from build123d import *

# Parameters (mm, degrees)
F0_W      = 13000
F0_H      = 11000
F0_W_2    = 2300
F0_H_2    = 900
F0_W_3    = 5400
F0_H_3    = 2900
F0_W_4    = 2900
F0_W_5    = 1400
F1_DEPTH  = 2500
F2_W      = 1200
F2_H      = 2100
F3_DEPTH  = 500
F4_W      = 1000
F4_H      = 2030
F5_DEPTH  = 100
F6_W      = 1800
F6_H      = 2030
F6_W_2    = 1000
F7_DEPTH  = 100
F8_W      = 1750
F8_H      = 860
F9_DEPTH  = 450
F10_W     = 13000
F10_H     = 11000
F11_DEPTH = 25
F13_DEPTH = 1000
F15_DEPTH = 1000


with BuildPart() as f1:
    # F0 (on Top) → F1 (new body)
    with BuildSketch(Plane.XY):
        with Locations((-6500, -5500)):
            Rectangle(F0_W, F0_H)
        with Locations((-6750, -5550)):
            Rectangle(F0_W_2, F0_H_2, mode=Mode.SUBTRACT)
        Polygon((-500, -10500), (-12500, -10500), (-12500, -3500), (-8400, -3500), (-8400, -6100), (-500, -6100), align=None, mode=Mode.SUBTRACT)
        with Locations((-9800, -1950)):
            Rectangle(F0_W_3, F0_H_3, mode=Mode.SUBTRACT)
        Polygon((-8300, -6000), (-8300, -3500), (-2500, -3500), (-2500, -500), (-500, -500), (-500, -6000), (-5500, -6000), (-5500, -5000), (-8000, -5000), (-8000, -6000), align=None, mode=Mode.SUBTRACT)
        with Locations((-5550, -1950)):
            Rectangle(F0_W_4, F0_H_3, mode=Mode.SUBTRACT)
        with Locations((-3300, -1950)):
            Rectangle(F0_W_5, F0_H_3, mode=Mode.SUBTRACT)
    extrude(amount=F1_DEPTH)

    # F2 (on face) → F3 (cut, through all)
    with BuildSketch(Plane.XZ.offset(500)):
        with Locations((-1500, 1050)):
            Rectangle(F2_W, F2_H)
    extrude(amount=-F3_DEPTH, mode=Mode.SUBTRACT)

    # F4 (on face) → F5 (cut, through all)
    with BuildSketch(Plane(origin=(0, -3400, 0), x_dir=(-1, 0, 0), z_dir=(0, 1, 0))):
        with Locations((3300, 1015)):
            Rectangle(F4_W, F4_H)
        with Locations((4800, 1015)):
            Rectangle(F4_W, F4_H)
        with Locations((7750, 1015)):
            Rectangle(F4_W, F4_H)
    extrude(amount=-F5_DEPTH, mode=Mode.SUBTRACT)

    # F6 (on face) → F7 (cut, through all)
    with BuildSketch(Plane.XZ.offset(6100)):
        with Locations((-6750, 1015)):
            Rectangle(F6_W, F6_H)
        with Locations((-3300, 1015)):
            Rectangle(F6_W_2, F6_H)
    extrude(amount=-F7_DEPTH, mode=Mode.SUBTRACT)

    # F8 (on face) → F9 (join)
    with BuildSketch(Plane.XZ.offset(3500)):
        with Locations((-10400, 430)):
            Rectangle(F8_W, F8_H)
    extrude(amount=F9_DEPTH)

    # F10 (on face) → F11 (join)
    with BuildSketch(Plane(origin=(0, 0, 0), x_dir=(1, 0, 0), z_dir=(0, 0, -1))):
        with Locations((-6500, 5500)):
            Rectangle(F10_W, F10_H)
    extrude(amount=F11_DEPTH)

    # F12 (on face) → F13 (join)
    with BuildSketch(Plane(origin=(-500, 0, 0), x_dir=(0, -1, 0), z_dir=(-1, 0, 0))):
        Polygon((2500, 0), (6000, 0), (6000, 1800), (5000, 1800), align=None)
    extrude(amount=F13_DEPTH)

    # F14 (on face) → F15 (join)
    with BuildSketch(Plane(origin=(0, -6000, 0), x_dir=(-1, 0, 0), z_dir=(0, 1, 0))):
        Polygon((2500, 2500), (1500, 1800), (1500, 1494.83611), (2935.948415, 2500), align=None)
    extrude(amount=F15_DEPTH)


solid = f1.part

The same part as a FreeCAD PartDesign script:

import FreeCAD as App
import Part
import Sketcher
from FreeCAD import Vector

doc = App.newDocument("Part")
body = doc.addObject("PartDesign::Body", "Body")

# Sketch on XY plane
sketch1 = doc.addObject("Sketcher::SketchObject", "Sketch")
body.addObject(sketch1)
sketch1.AttachmentSupport = (doc.XY_Plane, [""])
sketch1.MapMode = "FlatFace"
sketch1.addGeometry(Part.LineSegment(Vector(-13000, 0, 0), Vector(-13000, -11000, 0)), False)
sketch1.addGeometry(Part.LineSegment(Vector(-13000, -11000, 0), Vector(0, -11000, 0)), False)
sketch1.addGeometry(Part.LineSegment(Vector(0, -11000, 0), Vector(0, 0, 0)), False)
sketch1.addGeometry(Part.LineSegment(Vector(0, 0, 0), Vector(-13000, 0, 0)), False)
sketch1.addGeometry(Part.LineSegment(Vector(-5600, -6000, 0), Vector(-7900, -6000, 0)), False)
sketch1.addGeometry(Part.LineSegment(Vector(-7900, -6000, 0), Vector(-7900, -5100, 0)), False)
sketch1.addGeometry(Part.LineSegment(Vector(-7900, -5100, 0), Vector(-5600, -5100, 0)), False)
sketch1.addGeometry(Part.LineSegment(Vector(-5600, -5100, 0), Vector(-5600, -6000, 0)), False)
sketch1.addGeometry(Part.LineSegment(Vector(-500, -6100, 0), Vector(-500, -10500, 0)), False)
sketch1.addGeometry(Part.LineSegment(Vector(-500, -10500, 0), Vector(-12500, -10500, 0)), False)
sketch1.addGeometry(Part.LineSegment(Vector(-12500, -10500, 0), Vector(-12500, -3500, 0)), False)
sketch1.addGeometry(Part.LineSegment(Vector(-12500, -3500, 0), Vector(-8400, -3500, 0)), False)
sketch1.addGeometry(Part.LineSegment(Vector(-8400, -3500, 0), Vector(-8400, -6100, 0)), False)
sketch1.addGeometry(Part.LineSegment(Vector(-8400, -6100, 0), Vector(-500, -6100, 0)), False)
sketch1.addGeometry(Part.LineSegment(Vector(-7100, -3400, 0), Vector(-12500, -3400, 0)), False)
sketch1.addGeometry(Part.LineSegment(Vector(-12500, -3400, 0), Vector(-12500, -500, 0)), False)
sketch1.addGeometry(Part.LineSegment(Vector(-12500, -500, 0), Vector(-7100, -500, 0)), False)
sketch1.addGeometry(Part.LineSegment(Vector(-7100, -500, 0), Vector(-7100, -3400, 0)), False)
sketch1.addGeometry(Part.LineSegment(Vector(-8000, -6000, 0), Vector(-8300, -6000, 0)), False)
sketch1.addGeometry(Part.LineSegment(Vector(-8300, -6000, 0), Vector(-8300, -3500, 0)), False)
sketch1.addGeometry(Part.LineSegment(Vector(-8300, -3500, 0), Vector(-2500, -3500, 0)), False)
sketch1.addGeometry(Part.LineSegment(Vector(-2500, -3500, 0), Vector(-2500, -500, 0)), False)
sketch1.addGeometry(Part.LineSegment(Vector(-2500, -500, 0), Vector(-500, -500, 0)), False)
sketch1.addGeometry(Part.LineSegment(Vector(-500, -500, 0), Vector(-500, -6000, 0)), False)
sketch1.addGeometry(Part.LineSegment(Vector(-500, -6000, 0), Vector(-5500, -6000, 0)), False)
sketch1.addGeometry(Part.LineSegment(Vector(-5500, -6000, 0), Vector(-5500, -5000, 0)), False)
sketch1.addGeometry(Part.LineSegment(Vector(-5500, -5000, 0), Vector(-8000, -5000, 0)), False)
sketch1.addGeometry(Part.LineSegment(Vector(-8000, -5000, 0), Vector(-8000, -6000, 0)), False)
sketch1.addGeometry(Part.LineSegment(Vector(-4100, -3400, 0), Vector(-7000, -3400, 0)), False)
sketch1.addGeometry(Part.LineSegment(Vector(-7000, -3400, 0), Vector(-7000, -500, 0)), False)
sketch1.addGeometry(Part.LineSegment(Vector(-7000, -500, 0), Vector(-4100, -500, 0)), False)
sketch1.addGeometry(Part.LineSegment(Vector(-4100, -500, 0), Vector(-4100, -3400, 0)), False)
sketch1.addGeometry(Part.LineSegment(Vector(-2600, -3400, 0), Vector(-4000, -3400, 0)), False)
sketch1.addGeometry(Part.LineSegment(Vector(-4000, -3400, 0), Vector(-4000, -500, 0)), False)
sketch1.addGeometry(Part.LineSegment(Vector(-4000, -500, 0), Vector(-2600, -500, 0)), False)
sketch1.addGeometry(Part.LineSegment(Vector(-2600, -500, 0), Vector(-2600, -3400, 0)), False)
sketch1.addConstraint(Sketcher.Constraint("Coincident", 0, 2, 1, 1))
sketch1.addConstraint(Sketcher.Constraint("Coincident", 1, 2, 2, 1))
sketch1.addConstraint(Sketcher.Constraint("Coincident", 2, 2, 3, 1))
sketch1.addConstraint(Sketcher.Constraint("Coincident", 3, 2, 0, 1))
sketch1.addConstraint(Sketcher.Constraint("Coincident", 4, 2, 5, 1))
sketch1.addConstraint(Sketcher.Constraint("Coincident", 5, 2, 6, 1))
sketch1.addConstraint(Sketcher.Constraint("Coincident", 6, 2, 7, 1))
sketch1.addConstraint(Sketcher.Constraint("Coincident", 7, 2, 4, 1))
sketch1.addConstraint(Sketcher.Constraint("Coincident", 8, 2, 9, 1))
sketch1.addConstraint(Sketcher.Constraint("Coincident", 9, 2, 10, 1))
sketch1.addConstraint(Sketcher.Constraint("Coincident", 10, 2, 11, 1))
sketch1.addConstraint(Sketcher.Constraint("Coincident", 11, 2, 12, 1))
sketch1.addConstraint(Sketcher.Constraint("Coincident", 12, 2, 13, 1))
sketch1.addConstraint(Sketcher.Constraint("Coincident", 13, 2, 8, 1))
sketch1.addConstraint(Sketcher.Constraint("Coincident", 14, 2, 15, 1))
sketch1.addConstraint(Sketcher.Constraint("Coincident", 15, 2, 16, 1))
sketch1.addConstraint(Sketcher.Constraint("Coincident", 16, 2, 17, 1))
sketch1.addConstraint(Sketcher.Constraint("Coincident", 17, 2, 14, 1))
sketch1.addConstraint(Sketcher.Constraint("Coincident", 18, 2, 19, 1))
sketch1.addConstraint(Sketcher.Constraint("Coincident", 19, 2, 20, 1))
sketch1.addConstraint(Sketcher.Constraint("Coincident", 20, 2, 21, 1))
sketch1.addConstraint(Sketcher.Constraint("Coincident", 21, 2, 22, 1))
sketch1.addConstraint(Sketcher.Constraint("Coincident", 22, 2, 23, 1))
sketch1.addConstraint(Sketcher.Constraint("Coincident", 23, 2, 24, 1))
sketch1.addConstraint(Sketcher.Constraint("Coincident", 24, 2, 25, 1))
sketch1.addConstraint(Sketcher.Constraint("Coincident", 25, 2, 26, 1))
sketch1.addConstraint(Sketcher.Constraint("Coincident", 26, 2, 27, 1))
sketch1.addConstraint(Sketcher.Constraint("Coincident", 27, 2, 18, 1))
sketch1.addConstraint(Sketcher.Constraint("Coincident", 28, 2, 29, 1))
sketch1.addConstraint(Sketcher.Constraint("Coincident", 29, 2, 30, 1))
sketch1.addConstraint(Sketcher.Constraint("Coincident", 30, 2, 31, 1))
sketch1.addConstraint(Sketcher.Constraint("Coincident", 31, 2, 28, 1))
sketch1.addConstraint(Sketcher.Constraint("Coincident", 32, 2, 33, 1))
sketch1.addConstraint(Sketcher.Constraint("Coincident", 33, 2, 34, 1))
sketch1.addConstraint(Sketcher.Constraint("Coincident", 34, 2, 35, 1))
sketch1.addConstraint(Sketcher.Constraint("Coincident", 35, 2, 32, 1))
sketch1.addConstraint(Sketcher.Constraint("Vertical", 0))
sketch1.addConstraint(Sketcher.Constraint("Horizontal", 1))
sketch1.addConstraint(Sketcher.Constraint("Vertical", 2))
sketch1.addConstraint(Sketcher.Constraint("Horizontal", 3))
sketch1.addConstraint(Sketcher.Constraint("Horizontal", 4))
sketch1.addConstraint(Sketcher.Constraint("Vertical", 5))
sketch1.addConstraint(Sketcher.Constraint("Horizontal", 6))
sketch1.addConstraint(Sketcher.Constraint("Vertical", 7))
sketch1.addConstraint(Sketcher.Constraint("Vertical", 8))
sketch1.addConstraint(Sketcher.Constraint("Horizontal", 9))
sketch1.addConstraint(Sketcher.Constraint("Vertical", 10))
sketch1.addConstraint(Sketcher.Constraint("Horizontal", 11))
sketch1.addConstraint(Sketcher.Constraint("Vertical", 12))
sketch1.addConstraint(Sketcher.Constraint("Horizontal", 13))
sketch1.addConstraint(Sketcher.Constraint("Horizontal", 14))
sketch1.addConstraint(Sketcher.Constraint("Vertical", 15))
sketch1.addConstraint(Sketcher.Constraint("Horizontal", 16))
sketch1.addConstraint(Sketcher.Constraint("Vertical", 17))
sketch1.addConstraint(Sketcher.Constraint("Horizontal", 18))
sketch1.addConstraint(Sketcher.Constraint("Vertical", 19))
sketch1.addConstraint(Sketcher.Constraint("Horizontal", 20))
sketch1.addConstraint(Sketcher.Constraint("Vertical", 21))
sketch1.addConstraint(Sketcher.Constraint("Horizontal", 22))
sketch1.addConstraint(Sketcher.Constraint("Vertical", 23))
sketch1.addConstraint(Sketcher.Constraint("Horizontal", 24))
sketch1.addConstraint(Sketcher.Constraint("Vertical", 25))
sketch1.addConstraint(Sketcher.Constraint("Horizontal", 26))
sketch1.addConstraint(Sketcher.Constraint("Vertical", 27))
sketch1.addConstraint(Sketcher.Constraint("Horizontal", 28))
sketch1.addConstraint(Sketcher.Constraint("Vertical", 29))
sketch1.addConstraint(Sketcher.Constraint("Horizontal", 30))
sketch1.addConstraint(Sketcher.Constraint("Vertical", 31))
sketch1.addConstraint(Sketcher.Constraint("Horizontal", 32))
sketch1.addConstraint(Sketcher.Constraint("Vertical", 33))
sketch1.addConstraint(Sketcher.Constraint("Horizontal", 34))
sketch1.addConstraint(Sketcher.Constraint("Vertical", 35))
sketch1.addConstraint(Sketcher.Constraint("Coincident", 2, 2, -1, 1))
sketch1.addConstraint(Sketcher.Constraint("Horizontal", 7, 2, 18, 2))
sketch1.addConstraint(Sketcher.Constraint("Horizontal", 11, 2, 19, 2))
sketch1.addConstraint(Sketcher.Constraint("Horizontal", 16, 2, 21, 2))
sketch1.addConstraint(Sketcher.Constraint("Horizontal", 18, 2, 23, 2))
sketch1.addConstraint(Sketcher.Constraint("Horizontal", 17, 2, 28, 2))
sketch1.addConstraint(Sketcher.Constraint("Horizontal", 22, 2, 29, 2))
sketch1.addConstraint(Sketcher.Constraint("Horizontal", 31, 2, 32, 2))
sketch1.addConstraint(Sketcher.Constraint("Horizontal", 30, 2, 33, 2))
sketch1.addConstraint(Sketcher.Constraint("Vertical", 10, 2, 14, 2))
sketch1.addConstraint(Sketcher.Constraint("Vertical", 13, 2, 22, 2))
sketch1.addConstraint(Sketcher.Constraint("Equal", 30, 15))
sketch1.addConstraint(Sketcher.Constraint("Equal", 26, 19))
sketch1.addConstraint(Sketcher.Constraint("DistanceX", 1, 1, 1, 2, 13000.0))
sketch1.addConstraint(Sketcher.Constraint("DistanceX", 4, 2, 4, 1, 2300.0))
sketch1.addConstraint(Sketcher.Constraint("DistanceX", 9, 2, 9, 1, 12000.0))
sketch1.addConstraint(Sketcher.Constraint("DistanceX", 11, 1, 11, 2, 4100.0))
sketch1.addConstraint(Sketcher.Constraint("DistanceX", 14, 2, 14, 1, 5400.0))
sketch1.addConstraint(Sketcher.Constraint("DistanceX", 18, 2, 18, 1, 300.0))
sketch1.addConstraint(Sketcher.Constraint("DistanceX", 20, 1, 20, 2, 5800.0))
sketch1.addConstraint(Sketcher.Constraint("DistanceX", 22, 1, 22, 2, 2000.0))
sketch1.addConstraint(Sketcher.Constraint("DistanceX", 24, 2, 24, 1, 5000.0))
sketch1.addConstraint(Sketcher.Constraint("DistanceX", 28, 2, 28, 1, 2900.0))
sketch1.addConstraint(Sketcher.Constraint("DistanceX", 32, 2, 32, 1, 1400.0))
sketch1.addConstraint(Sketcher.Constraint("DistanceY", 0, 2, 0, 1, 11000.0))
sketch1.addConstraint(Sketcher.Constraint("DistanceY", 5, 1, 5, 2, 900.0))
sketch1.addConstraint(Sketcher.Constraint("DistanceY", 8, 2, 8, 1, 4400.0))
sketch1.addConstraint(Sketcher.Constraint("DistanceY", 10, 1, 10, 2, 7000.0))
sketch1.addConstraint(Sketcher.Constraint("DistanceY", 21, 1, 21, 2, 3000.0))
sketch1.addConstraint(Sketcher.Constraint("DistanceY", 25, 1, 25, 2, 1000.0))
sketch1.addConstraint(Sketcher.Constraint("DistanceX", 4, 2, -1, 1, 7900.0))
sketch1.addConstraint(Sketcher.Constraint("DistanceY", 4, 2, -1, 1, 6000.0))
sketch1.addConstraint(Sketcher.Constraint("DistanceX", 8, 2, -1, 1, 500.0))
sketch1.addConstraint(Sketcher.Constraint("DistanceX", 28, 2, -1, 1, 7000.0))
sketch1.addConstraint(Sketcher.Constraint("DistanceX", 32, 2, -1, 1, 4000.0))
pad1 = doc.addObject("PartDesign::Pad", "Pad")
body.addObject(pad1)
pad1.Profile = sketch1
pad1.Length = 2500

# Sketch on XZ plane
sketch2 = doc.addObject("Sketcher::SketchObject", "Sketch001")
body.addObject(sketch2)
sketch2.AttachmentSupport = (doc.XZ_Plane, [""])
sketch2.MapMode = "FlatFace"
sketch2.AttachmentOffset = App.Placement(Vector(0, 0, 500), App.Rotation())
sketch2.addGeometry(Part.LineSegment(Vector(-2100, 2100, 0), Vector(-2100, 0, 0)), False)
sketch2.addGeometry(Part.LineSegment(Vector(-2100, 0, 0), Vector(-900, 0, 0)), False)
sketch2.addGeometry(Part.LineSegment(Vector(-900, 0, 0), Vector(-900, 2100, 0)), False)
sketch2.addGeometry(Part.LineSegment(Vector(-900, 2100, 0), Vector(-2100, 2100, 0)), False)
sketch2.addConstraint(Sketcher.Constraint("Coincident", 0, 2, 1, 1))
sketch2.addConstraint(Sketcher.Constraint("Coincident", 1, 2, 2, 1))
sketch2.addConstraint(Sketcher.Constraint("Coincident", 2, 2, 3, 1))
sketch2.addConstraint(Sketcher.Constraint("Coincident", 3, 2, 0, 1))
sketch2.addConstraint(Sketcher.Constraint("Vertical", 0))
sketch2.addConstraint(Sketcher.Constraint("Horizontal", 1))
sketch2.addConstraint(Sketcher.Constraint("Vertical", 2))
sketch2.addConstraint(Sketcher.Constraint("Horizontal", 3))
sketch2.addConstraint(Sketcher.Constraint("PointOnObject", 0, 2, -1))
sketch2.addConstraint(Sketcher.Constraint("DistanceX", 1, 1, 1, 2, 1200.0))
sketch2.addConstraint(Sketcher.Constraint("DistanceY", 0, 2, 0, 1, 2100.0))
sketch2.addConstraint(Sketcher.Constraint("DistanceX", 0, 2, -1, 1, 2100.0))
pocket1 = doc.addObject("PartDesign::Pocket", "Pocket")
body.addObject(pocket1)
pocket1.Profile = sketch2
pocket1.Type = "ThroughAll"

# Sketch on XZ plane
sketch3 = doc.addObject("Sketcher::SketchObject", "Sketch002")
body.addObject(sketch3)
sketch3.AttachmentSupport = (doc.XZ_Plane, [""])
sketch3.MapMode = "FlatFace"
sketch3.AttachmentOffset = App.Placement(Vector(0, 0, 3400), App.Rotation())
sketch3.addGeometry(Part.LineSegment(Vector(-2800, 2030, 0), Vector(-2800, 0, 0)), False)
sketch3.addGeometry(Part.LineSegment(Vector(-2800, 0, 0), Vector(-3800, 0, 0)), False)
sketch3.addGeometry(Part.LineSegment(Vector(-3800, 0, 0), Vector(-3800, 2030, 0)), False)
sketch3.addGeometry(Part.LineSegment(Vector(-3800, 2030, 0), Vector(-2800, 2030, 0)), False)
sketch3.addGeometry(Part.LineSegment(Vector(-4300, 2030, 0), Vector(-4300, 0, 0)), False)
sketch3.addGeometry(Part.LineSegment(Vector(-4300, 0, 0), Vector(-5300, 0, 0)), False)
sketch3.addGeometry(Part.LineSegment(Vector(-5300, 0, 0), Vector(-5300, 2030, 0)), False)
sketch3.addGeometry(Part.LineSegment(Vector(-5300, 2030, 0), Vector(-4300, 2030, 0)), False)
sketch3.addGeometry(Part.LineSegment(Vector(-7250, 2030, 0), Vector(-7250, 0, 0)), False)
sketch3.addGeometry(Part.LineSegment(Vector(-7250, 0, 0), Vector(-8250, 0, 0)), False)
sketch3.addGeometry(Part.LineSegment(Vector(-8250, 0, 0), Vector(-8250, 2030, 0)), False)
sketch3.addGeometry(Part.LineSegment(Vector(-8250, 2030, 0), Vector(-7250, 2030, 0)), False)
sketch3.addConstraint(Sketcher.Constraint("Coincident", 0, 2, 1, 1))
sketch3.addConstraint(Sketcher.Constraint("Coincident", 1, 2, 2, 1))
sketch3.addConstraint(Sketcher.Constraint("Coincident", 2, 2, 3, 1))
sketch3.addConstraint(Sketcher.Constraint("Coincident", 3, 2, 0, 1))
sketch3.addConstraint(Sketcher.Constraint("Coincident", 4, 2, 5, 1))
sketch3.addConstraint(Sketcher.Constraint("Coincident", 5, 2, 6, 1))
sketch3.addConstraint(Sketcher.Constraint("Coincident", 6, 2, 7, 1))
sketch3.addConstraint(Sketcher.Constraint("Coincident", 7, 2, 4, 1))
sketch3.addConstraint(Sketcher.Constraint("Coincident", 8, 2, 9, 1))
sketch3.addConstraint(Sketcher.Constraint("Coincident", 9, 2, 10, 1))
sketch3.addConstraint(Sketcher.Constraint("Coincident", 10, 2, 11, 1))
sketch3.addConstraint(Sketcher.Constraint("Coincident", 11, 2, 8, 1))
sketch3.addConstraint(Sketcher.Constraint("Vertical", 0))
sketch3.addConstraint(Sketcher.Constraint("Horizontal", 1))
sketch3.addConstraint(Sketcher.Constraint("Vertical", 2))
sketch3.addConstraint(Sketcher.Constraint("Horizontal", 3))
sketch3.addConstraint(Sketcher.Constraint("Vertical", 4))
sketch3.addConstraint(Sketcher.Constraint("Horizontal", 5))
sketch3.addConstraint(Sketcher.Constraint("Vertical", 6))
sketch3.addConstraint(Sketcher.Constraint("Horizontal", 7))
sketch3.addConstraint(Sketcher.Constraint("Vertical", 8))
sketch3.addConstraint(Sketcher.Constraint("Horizontal", 9))
sketch3.addConstraint(Sketcher.Constraint("Vertical", 10))
sketch3.addConstraint(Sketcher.Constraint("Horizontal", 11))
sketch3.addConstraint(Sketcher.Constraint("PointOnObject", 0, 2, -1))
sketch3.addConstraint(Sketcher.Constraint("PointOnObject", 4, 2, -1))
sketch3.addConstraint(Sketcher.Constraint("PointOnObject", 8, 2, -1))
sketch3.addConstraint(Sketcher.Constraint("Horizontal", 3, 2, 6, 2))
sketch3.addConstraint(Sketcher.Constraint("Horizontal", 7, 2, 10, 2))
sketch3.addConstraint(Sketcher.Constraint("Equal", 3, 5))
sketch3.addConstraint(Sketcher.Constraint("Equal", 7, 9))
sketch3.addConstraint(Sketcher.Constraint("DistanceX", 1, 2, 1, 1, 1000.0))
sketch3.addConstraint(Sketcher.Constraint("DistanceY", 0, 2, 0, 1, 2030.0))
sketch3.addConstraint(Sketcher.Constraint("DistanceX", 0, 2, -1, 1, 2800.0))
sketch3.addConstraint(Sketcher.Constraint("DistanceX", 4, 2, -1, 1, 4300.0))
sketch3.addConstraint(Sketcher.Constraint("DistanceX", 8, 2, -1, 1, 7250.0))
pocket2 = doc.addObject("PartDesign::Pocket", "Pocket001")
body.addObject(pocket2)
pocket2.Profile = sketch3
pocket2.Length = 100
pocket2.Reversed = True

# Sketch on XZ plane
sketch4 = doc.addObject("Sketcher::SketchObject", "Sketch003")
body.addObject(sketch4)
sketch4.AttachmentSupport = (doc.XZ_Plane, [""])
sketch4.MapMode = "FlatFace"
sketch4.AttachmentOffset = App.Placement(Vector(0, 0, 6100), App.Rotation())
sketch4.addGeometry(Part.LineSegment(Vector(-7650, 2030, 0), Vector(-7650, 0, 0)), False)
sketch4.addGeometry(Part.LineSegment(Vector(-7650, 0, 0), Vector(-5850, 0, 0)), False)
sketch4.addGeometry(Part.LineSegment(Vector(-5850, 0, 0), Vector(-5850, 2030, 0)), False)
sketch4.addGeometry(Part.LineSegment(Vector(-5850, 2030, 0), Vector(-7650, 2030, 0)), False)
sketch4.addGeometry(Part.LineSegment(Vector(-3800, 2030, 0), Vector(-3800, 0, 0)), False)
sketch4.addGeometry(Part.LineSegment(Vector(-3800, 0, 0), Vector(-2800, 0, 0)), False)
sketch4.addGeometry(Part.LineSegment(Vector(-2800, 0, 0), Vector(-2800, 2030, 0)), False)
sketch4.addGeometry(Part.LineSegment(Vector(-2800, 2030, 0), Vector(-3800, 2030, 0)), False)
sketch4.addConstraint(Sketcher.Constraint("Coincident", 0, 2, 1, 1))
sketch4.addConstraint(Sketcher.Constraint("Coincident", 1, 2, 2, 1))
sketch4.addConstraint(Sketcher.Constraint("Coincident", 2, 2, 3, 1))
sketch4.addConstraint(Sketcher.Constraint("Coincident", 3, 2, 0, 1))
sketch4.addConstraint(Sketcher.Constraint("Coincident", 4, 2, 5, 1))
sketch4.addConstraint(Sketcher.Constraint("Coincident", 5, 2, 6, 1))
sketch4.addConstraint(Sketcher.Constraint("Coincident", 6, 2, 7, 1))
sketch4.addConstraint(Sketcher.Constraint("Coincident", 7, 2, 4, 1))
sketch4.addConstraint(Sketcher.Constraint("Vertical", 0))
sketch4.addConstraint(Sketcher.Constraint("Horizontal", 1))
sketch4.addConstraint(Sketcher.Constraint("Vertical", 2))
sketch4.addConstraint(Sketcher.Constraint("Horizontal", 3))
sketch4.addConstraint(Sketcher.Constraint("Vertical", 4))
sketch4.addConstraint(Sketcher.Constraint("Horizontal", 5))
sketch4.addConstraint(Sketcher.Constraint("Vertical", 6))
sketch4.addConstraint(Sketcher.Constraint("Horizontal", 7))
sketch4.addConstraint(Sketcher.Constraint("PointOnObject", 0, 2, -1))
sketch4.addConstraint(Sketcher.Constraint("PointOnObject", 4, 2, -1))
sketch4.addConstraint(Sketcher.Constraint("Horizontal", 3, 2, 6, 2))
sketch4.addConstraint(Sketcher.Constraint("DistanceX", 1, 1, 1, 2, 1800.0))
sketch4.addConstraint(Sketcher.Constraint("DistanceX", 5, 1, 5, 2, 1000.0))
sketch4.addConstraint(Sketcher.Constraint("DistanceY", 0, 2, 0, 1, 2030.0))
sketch4.addConstraint(Sketcher.Constraint("DistanceX", 0, 2, -1, 1, 7650.0))
sketch4.addConstraint(Sketcher.Constraint("DistanceX", 4, 2, -1, 1, 3800.0))
pocket3 = doc.addObject("PartDesign::Pocket", "Pocket002")
body.addObject(pocket3)
pocket3.Profile = sketch4
pocket3.Length = 100

# Sketch on XZ plane
sketch5 = doc.addObject("Sketcher::SketchObject", "Sketch004")
body.addObject(sketch5)
sketch5.AttachmentSupport = (doc.XZ_Plane, [""])
sketch5.MapMode = "FlatFace"
sketch5.AttachmentOffset = App.Placement(Vector(0, 0, 3500), App.Rotation())
sketch5.addGeometry(Part.LineSegment(Vector(-11275, 860, 0), Vector(-11275, 0, 0)), False)
sketch5.addGeometry(Part.LineSegment(Vector(-11275, 0, 0), Vector(-9525, 0, 0)), False)
sketch5.addGeometry(Part.LineSegment(Vector(-9525, 0, 0), Vector(-9525, 860, 0)), False)
sketch5.addGeometry(Part.LineSegment(Vector(-9525, 860, 0), Vector(-11275, 860, 0)), False)
sketch5.addConstraint(Sketcher.Constraint("Coincident", 0, 2, 1, 1))
sketch5.addConstraint(Sketcher.Constraint("Coincident", 1, 2, 2, 1))
sketch5.addConstraint(Sketcher.Constraint("Coincident", 2, 2, 3, 1))
sketch5.addConstraint(Sketcher.Constraint("Coincident", 3, 2, 0, 1))
sketch5.addConstraint(Sketcher.Constraint("Vertical", 0))
sketch5.addConstraint(Sketcher.Constraint("Horizontal", 1))
sketch5.addConstraint(Sketcher.Constraint("Vertical", 2))
sketch5.addConstraint(Sketcher.Constraint("Horizontal", 3))
sketch5.addConstraint(Sketcher.Constraint("PointOnObject", 0, 2, -1))
sketch5.addConstraint(Sketcher.Constraint("DistanceX", 1, 1, 1, 2, 1750.0))
sketch5.addConstraint(Sketcher.Constraint("DistanceY", 0, 2, 0, 1, 860.0))
sketch5.addConstraint(Sketcher.Constraint("DistanceX", 0, 2, -1, 1, 11275.0))
pad2 = doc.addObject("PartDesign::Pad", "Pad001")
body.addObject(pad2)
pad2.Profile = sketch5
pad2.Length = 450

# Sketch on XY plane
sketch6 = doc.addObject("Sketcher::SketchObject", "Sketch005")
body.addObject(sketch6)
sketch6.AttachmentSupport = (doc.XY_Plane, [""])
sketch6.MapMode = "FlatFace"
sketch6.addGeometry(Part.LineSegment(Vector(-13000, -11000, 0), Vector(-13000, 0, 0)), False)
sketch6.addGeometry(Part.LineSegment(Vector(-13000, 0, 0), Vector(0, 0, 0)), False)
sketch6.addGeometry(Part.LineSegment(Vector(0, 0, 0), Vector(0, -11000, 0)), False)
sketch6.addGeometry(Part.LineSegment(Vector(0, -11000, 0), Vector(-13000, -11000, 0)), False)
sketch6.addConstraint(Sketcher.Constraint("Coincident", 0, 2, 1, 1))
sketch6.addConstraint(Sketcher.Constraint("Coincident", 1, 2, 2, 1))
sketch6.addConstraint(Sketcher.Constraint("Coincident", 2, 2, 3, 1))
sketch6.addConstraint(Sketcher.Constraint("Coincident", 3, 2, 0, 1))
sketch6.addConstraint(Sketcher.Constraint("Vertical", 0))
sketch6.addConstraint(Sketcher.Constraint("Horizontal", 1))
sketch6.addConstraint(Sketcher.Constraint("Vertical", 2))
sketch6.addConstraint(Sketcher.Constraint("Horizontal", 3))
sketch6.addConstraint(Sketcher.Constraint("Coincident", 1, 2, -1, 1))
sketch6.addConstraint(Sketcher.Constraint("DistanceX", 1, 1, 1, 2, 13000.0))
sketch6.addConstraint(Sketcher.Constraint("DistanceY", 0, 1, 0, 2, 11000.0))
pad3 = doc.addObject("PartDesign::Pad", "Pad002")
body.addObject(pad3)
pad3.Profile = sketch6
pad3.Length = 25
pad3.Reversed = True

# Sketch on YZ plane
sketch7 = doc.addObject("Sketcher::SketchObject", "Sketch006")
body.addObject(sketch7)
sketch7.AttachmentSupport = (doc.YZ_Plane, [""])
sketch7.MapMode = "FlatFace"
sketch7.AttachmentOffset = App.Placement(Vector(0, 0, -500), App.Rotation())
sketch7.addGeometry(Part.LineSegment(Vector(-2500, 0, 0), Vector(-6000, 0, 0)), False)
sketch7.addGeometry(Part.LineSegment(Vector(-6000, 0, 0), Vector(-6000, 1800, 0)), False)
sketch7.addGeometry(Part.LineSegment(Vector(-6000, 1800, 0), Vector(-5000, 1800, 0)), False)
sketch7.addGeometry(Part.LineSegment(Vector(-5000, 1800, 0), Vector(-2500, 0, 0)), False)
sketch7.addConstraint(Sketcher.Constraint("Coincident", 0, 2, 1, 1))
sketch7.addConstraint(Sketcher.Constraint("Coincident", 1, 2, 2, 1))
sketch7.addConstraint(Sketcher.Constraint("Coincident", 2, 2, 3, 1))
sketch7.addConstraint(Sketcher.Constraint("Coincident", 3, 2, 0, 1))
sketch7.addConstraint(Sketcher.Constraint("Horizontal", 0))
sketch7.addConstraint(Sketcher.Constraint("Vertical", 1))
sketch7.addConstraint(Sketcher.Constraint("Horizontal", 2))
sketch7.addConstraint(Sketcher.Constraint("PointOnObject", 0, 2, -1))
sketch7.addConstraint(Sketcher.Constraint("DistanceX", 0, 2, 0, 1, 3500.0))
sketch7.addConstraint(Sketcher.Constraint("DistanceX", 2, 1, 2, 2, 1000.0))
sketch7.addConstraint(Sketcher.Constraint("DistanceY", 1, 1, 1, 2, 1800.0))
sketch7.addConstraint(Sketcher.Constraint("DistanceX", 0, 2, -1, 1, 6000.0))
pad4 = doc.addObject("PartDesign::Pad", "Pad003")
body.addObject(pad4)
pad4.Profile = sketch7
pad4.Length = 1000
pad4.Reversed = True

# Sketch on XZ plane
sketch8 = doc.addObject("Sketcher::SketchObject", "Sketch007")
body.addObject(sketch8)
sketch8.AttachmentSupport = (doc.XZ_Plane, [""])
sketch8.MapMode = "FlatFace"
sketch8.AttachmentOffset = App.Placement(Vector(0, 0, 6000), App.Rotation())
sketch8.addGeometry(Part.LineSegment(Vector(-2500, 2500, 0), Vector(-1500, 1800, 0)), False)
sketch8.addGeometry(Part.LineSegment(Vector(-1500, 1800, 0), Vector(-1500, 1494.83611, 0)), False)
sketch8.addGeometry(Part.LineSegment(Vector(-1500, 1494.83611, 0), Vector(-2935.948415, 2500, 0)), False)
sketch8.addGeometry(Part.LineSegment(Vector(-2935.948415, 2500, 0), Vector(-2500, 2500, 0)), False)
sketch8.addConstraint(Sketcher.Constraint("Coincident", 0, 2, 1, 1))
sketch8.addConstraint(Sketcher.Constraint("Coincident", 1, 2, 2, 1))
sketch8.addConstraint(Sketcher.Constraint("Coincident", 2, 2, 3, 1))
sketch8.addConstraint(Sketcher.Constraint("Coincident", 3, 2, 0, 1))
sketch8.addConstraint(Sketcher.Constraint("Vertical", 1))
sketch8.addConstraint(Sketcher.Constraint("Horizontal", 3))
sketch8.addConstraint(Sketcher.Constraint("Parallel", 0, 2))
sketch8.addConstraint(Sketcher.Constraint("DistanceX", 0, 2, -1, 1, 1500.0))
sketch8.addConstraint(Sketcher.Constraint("DistanceY", -1, 1, 0, 2, 1800.0))
sketch8.addConstraint(Sketcher.Constraint("DistanceY", -1, 1, 2, 2, 2500.0))
sketch8.addConstraint(Sketcher.Constraint("DistanceX", 3, 2, -1, 1, 2500.0))
sketch8.addConstraint(Sketcher.Constraint("DistanceY", 1, 2, 1, 1, 305.16389))
pad5 = doc.addObject("PartDesign::Pad", "Pad004")
body.addObject(pad5)
pad5.Profile = sketch8
pad5.Length = 1000
pad5.Reversed = True

doc.recompute()
